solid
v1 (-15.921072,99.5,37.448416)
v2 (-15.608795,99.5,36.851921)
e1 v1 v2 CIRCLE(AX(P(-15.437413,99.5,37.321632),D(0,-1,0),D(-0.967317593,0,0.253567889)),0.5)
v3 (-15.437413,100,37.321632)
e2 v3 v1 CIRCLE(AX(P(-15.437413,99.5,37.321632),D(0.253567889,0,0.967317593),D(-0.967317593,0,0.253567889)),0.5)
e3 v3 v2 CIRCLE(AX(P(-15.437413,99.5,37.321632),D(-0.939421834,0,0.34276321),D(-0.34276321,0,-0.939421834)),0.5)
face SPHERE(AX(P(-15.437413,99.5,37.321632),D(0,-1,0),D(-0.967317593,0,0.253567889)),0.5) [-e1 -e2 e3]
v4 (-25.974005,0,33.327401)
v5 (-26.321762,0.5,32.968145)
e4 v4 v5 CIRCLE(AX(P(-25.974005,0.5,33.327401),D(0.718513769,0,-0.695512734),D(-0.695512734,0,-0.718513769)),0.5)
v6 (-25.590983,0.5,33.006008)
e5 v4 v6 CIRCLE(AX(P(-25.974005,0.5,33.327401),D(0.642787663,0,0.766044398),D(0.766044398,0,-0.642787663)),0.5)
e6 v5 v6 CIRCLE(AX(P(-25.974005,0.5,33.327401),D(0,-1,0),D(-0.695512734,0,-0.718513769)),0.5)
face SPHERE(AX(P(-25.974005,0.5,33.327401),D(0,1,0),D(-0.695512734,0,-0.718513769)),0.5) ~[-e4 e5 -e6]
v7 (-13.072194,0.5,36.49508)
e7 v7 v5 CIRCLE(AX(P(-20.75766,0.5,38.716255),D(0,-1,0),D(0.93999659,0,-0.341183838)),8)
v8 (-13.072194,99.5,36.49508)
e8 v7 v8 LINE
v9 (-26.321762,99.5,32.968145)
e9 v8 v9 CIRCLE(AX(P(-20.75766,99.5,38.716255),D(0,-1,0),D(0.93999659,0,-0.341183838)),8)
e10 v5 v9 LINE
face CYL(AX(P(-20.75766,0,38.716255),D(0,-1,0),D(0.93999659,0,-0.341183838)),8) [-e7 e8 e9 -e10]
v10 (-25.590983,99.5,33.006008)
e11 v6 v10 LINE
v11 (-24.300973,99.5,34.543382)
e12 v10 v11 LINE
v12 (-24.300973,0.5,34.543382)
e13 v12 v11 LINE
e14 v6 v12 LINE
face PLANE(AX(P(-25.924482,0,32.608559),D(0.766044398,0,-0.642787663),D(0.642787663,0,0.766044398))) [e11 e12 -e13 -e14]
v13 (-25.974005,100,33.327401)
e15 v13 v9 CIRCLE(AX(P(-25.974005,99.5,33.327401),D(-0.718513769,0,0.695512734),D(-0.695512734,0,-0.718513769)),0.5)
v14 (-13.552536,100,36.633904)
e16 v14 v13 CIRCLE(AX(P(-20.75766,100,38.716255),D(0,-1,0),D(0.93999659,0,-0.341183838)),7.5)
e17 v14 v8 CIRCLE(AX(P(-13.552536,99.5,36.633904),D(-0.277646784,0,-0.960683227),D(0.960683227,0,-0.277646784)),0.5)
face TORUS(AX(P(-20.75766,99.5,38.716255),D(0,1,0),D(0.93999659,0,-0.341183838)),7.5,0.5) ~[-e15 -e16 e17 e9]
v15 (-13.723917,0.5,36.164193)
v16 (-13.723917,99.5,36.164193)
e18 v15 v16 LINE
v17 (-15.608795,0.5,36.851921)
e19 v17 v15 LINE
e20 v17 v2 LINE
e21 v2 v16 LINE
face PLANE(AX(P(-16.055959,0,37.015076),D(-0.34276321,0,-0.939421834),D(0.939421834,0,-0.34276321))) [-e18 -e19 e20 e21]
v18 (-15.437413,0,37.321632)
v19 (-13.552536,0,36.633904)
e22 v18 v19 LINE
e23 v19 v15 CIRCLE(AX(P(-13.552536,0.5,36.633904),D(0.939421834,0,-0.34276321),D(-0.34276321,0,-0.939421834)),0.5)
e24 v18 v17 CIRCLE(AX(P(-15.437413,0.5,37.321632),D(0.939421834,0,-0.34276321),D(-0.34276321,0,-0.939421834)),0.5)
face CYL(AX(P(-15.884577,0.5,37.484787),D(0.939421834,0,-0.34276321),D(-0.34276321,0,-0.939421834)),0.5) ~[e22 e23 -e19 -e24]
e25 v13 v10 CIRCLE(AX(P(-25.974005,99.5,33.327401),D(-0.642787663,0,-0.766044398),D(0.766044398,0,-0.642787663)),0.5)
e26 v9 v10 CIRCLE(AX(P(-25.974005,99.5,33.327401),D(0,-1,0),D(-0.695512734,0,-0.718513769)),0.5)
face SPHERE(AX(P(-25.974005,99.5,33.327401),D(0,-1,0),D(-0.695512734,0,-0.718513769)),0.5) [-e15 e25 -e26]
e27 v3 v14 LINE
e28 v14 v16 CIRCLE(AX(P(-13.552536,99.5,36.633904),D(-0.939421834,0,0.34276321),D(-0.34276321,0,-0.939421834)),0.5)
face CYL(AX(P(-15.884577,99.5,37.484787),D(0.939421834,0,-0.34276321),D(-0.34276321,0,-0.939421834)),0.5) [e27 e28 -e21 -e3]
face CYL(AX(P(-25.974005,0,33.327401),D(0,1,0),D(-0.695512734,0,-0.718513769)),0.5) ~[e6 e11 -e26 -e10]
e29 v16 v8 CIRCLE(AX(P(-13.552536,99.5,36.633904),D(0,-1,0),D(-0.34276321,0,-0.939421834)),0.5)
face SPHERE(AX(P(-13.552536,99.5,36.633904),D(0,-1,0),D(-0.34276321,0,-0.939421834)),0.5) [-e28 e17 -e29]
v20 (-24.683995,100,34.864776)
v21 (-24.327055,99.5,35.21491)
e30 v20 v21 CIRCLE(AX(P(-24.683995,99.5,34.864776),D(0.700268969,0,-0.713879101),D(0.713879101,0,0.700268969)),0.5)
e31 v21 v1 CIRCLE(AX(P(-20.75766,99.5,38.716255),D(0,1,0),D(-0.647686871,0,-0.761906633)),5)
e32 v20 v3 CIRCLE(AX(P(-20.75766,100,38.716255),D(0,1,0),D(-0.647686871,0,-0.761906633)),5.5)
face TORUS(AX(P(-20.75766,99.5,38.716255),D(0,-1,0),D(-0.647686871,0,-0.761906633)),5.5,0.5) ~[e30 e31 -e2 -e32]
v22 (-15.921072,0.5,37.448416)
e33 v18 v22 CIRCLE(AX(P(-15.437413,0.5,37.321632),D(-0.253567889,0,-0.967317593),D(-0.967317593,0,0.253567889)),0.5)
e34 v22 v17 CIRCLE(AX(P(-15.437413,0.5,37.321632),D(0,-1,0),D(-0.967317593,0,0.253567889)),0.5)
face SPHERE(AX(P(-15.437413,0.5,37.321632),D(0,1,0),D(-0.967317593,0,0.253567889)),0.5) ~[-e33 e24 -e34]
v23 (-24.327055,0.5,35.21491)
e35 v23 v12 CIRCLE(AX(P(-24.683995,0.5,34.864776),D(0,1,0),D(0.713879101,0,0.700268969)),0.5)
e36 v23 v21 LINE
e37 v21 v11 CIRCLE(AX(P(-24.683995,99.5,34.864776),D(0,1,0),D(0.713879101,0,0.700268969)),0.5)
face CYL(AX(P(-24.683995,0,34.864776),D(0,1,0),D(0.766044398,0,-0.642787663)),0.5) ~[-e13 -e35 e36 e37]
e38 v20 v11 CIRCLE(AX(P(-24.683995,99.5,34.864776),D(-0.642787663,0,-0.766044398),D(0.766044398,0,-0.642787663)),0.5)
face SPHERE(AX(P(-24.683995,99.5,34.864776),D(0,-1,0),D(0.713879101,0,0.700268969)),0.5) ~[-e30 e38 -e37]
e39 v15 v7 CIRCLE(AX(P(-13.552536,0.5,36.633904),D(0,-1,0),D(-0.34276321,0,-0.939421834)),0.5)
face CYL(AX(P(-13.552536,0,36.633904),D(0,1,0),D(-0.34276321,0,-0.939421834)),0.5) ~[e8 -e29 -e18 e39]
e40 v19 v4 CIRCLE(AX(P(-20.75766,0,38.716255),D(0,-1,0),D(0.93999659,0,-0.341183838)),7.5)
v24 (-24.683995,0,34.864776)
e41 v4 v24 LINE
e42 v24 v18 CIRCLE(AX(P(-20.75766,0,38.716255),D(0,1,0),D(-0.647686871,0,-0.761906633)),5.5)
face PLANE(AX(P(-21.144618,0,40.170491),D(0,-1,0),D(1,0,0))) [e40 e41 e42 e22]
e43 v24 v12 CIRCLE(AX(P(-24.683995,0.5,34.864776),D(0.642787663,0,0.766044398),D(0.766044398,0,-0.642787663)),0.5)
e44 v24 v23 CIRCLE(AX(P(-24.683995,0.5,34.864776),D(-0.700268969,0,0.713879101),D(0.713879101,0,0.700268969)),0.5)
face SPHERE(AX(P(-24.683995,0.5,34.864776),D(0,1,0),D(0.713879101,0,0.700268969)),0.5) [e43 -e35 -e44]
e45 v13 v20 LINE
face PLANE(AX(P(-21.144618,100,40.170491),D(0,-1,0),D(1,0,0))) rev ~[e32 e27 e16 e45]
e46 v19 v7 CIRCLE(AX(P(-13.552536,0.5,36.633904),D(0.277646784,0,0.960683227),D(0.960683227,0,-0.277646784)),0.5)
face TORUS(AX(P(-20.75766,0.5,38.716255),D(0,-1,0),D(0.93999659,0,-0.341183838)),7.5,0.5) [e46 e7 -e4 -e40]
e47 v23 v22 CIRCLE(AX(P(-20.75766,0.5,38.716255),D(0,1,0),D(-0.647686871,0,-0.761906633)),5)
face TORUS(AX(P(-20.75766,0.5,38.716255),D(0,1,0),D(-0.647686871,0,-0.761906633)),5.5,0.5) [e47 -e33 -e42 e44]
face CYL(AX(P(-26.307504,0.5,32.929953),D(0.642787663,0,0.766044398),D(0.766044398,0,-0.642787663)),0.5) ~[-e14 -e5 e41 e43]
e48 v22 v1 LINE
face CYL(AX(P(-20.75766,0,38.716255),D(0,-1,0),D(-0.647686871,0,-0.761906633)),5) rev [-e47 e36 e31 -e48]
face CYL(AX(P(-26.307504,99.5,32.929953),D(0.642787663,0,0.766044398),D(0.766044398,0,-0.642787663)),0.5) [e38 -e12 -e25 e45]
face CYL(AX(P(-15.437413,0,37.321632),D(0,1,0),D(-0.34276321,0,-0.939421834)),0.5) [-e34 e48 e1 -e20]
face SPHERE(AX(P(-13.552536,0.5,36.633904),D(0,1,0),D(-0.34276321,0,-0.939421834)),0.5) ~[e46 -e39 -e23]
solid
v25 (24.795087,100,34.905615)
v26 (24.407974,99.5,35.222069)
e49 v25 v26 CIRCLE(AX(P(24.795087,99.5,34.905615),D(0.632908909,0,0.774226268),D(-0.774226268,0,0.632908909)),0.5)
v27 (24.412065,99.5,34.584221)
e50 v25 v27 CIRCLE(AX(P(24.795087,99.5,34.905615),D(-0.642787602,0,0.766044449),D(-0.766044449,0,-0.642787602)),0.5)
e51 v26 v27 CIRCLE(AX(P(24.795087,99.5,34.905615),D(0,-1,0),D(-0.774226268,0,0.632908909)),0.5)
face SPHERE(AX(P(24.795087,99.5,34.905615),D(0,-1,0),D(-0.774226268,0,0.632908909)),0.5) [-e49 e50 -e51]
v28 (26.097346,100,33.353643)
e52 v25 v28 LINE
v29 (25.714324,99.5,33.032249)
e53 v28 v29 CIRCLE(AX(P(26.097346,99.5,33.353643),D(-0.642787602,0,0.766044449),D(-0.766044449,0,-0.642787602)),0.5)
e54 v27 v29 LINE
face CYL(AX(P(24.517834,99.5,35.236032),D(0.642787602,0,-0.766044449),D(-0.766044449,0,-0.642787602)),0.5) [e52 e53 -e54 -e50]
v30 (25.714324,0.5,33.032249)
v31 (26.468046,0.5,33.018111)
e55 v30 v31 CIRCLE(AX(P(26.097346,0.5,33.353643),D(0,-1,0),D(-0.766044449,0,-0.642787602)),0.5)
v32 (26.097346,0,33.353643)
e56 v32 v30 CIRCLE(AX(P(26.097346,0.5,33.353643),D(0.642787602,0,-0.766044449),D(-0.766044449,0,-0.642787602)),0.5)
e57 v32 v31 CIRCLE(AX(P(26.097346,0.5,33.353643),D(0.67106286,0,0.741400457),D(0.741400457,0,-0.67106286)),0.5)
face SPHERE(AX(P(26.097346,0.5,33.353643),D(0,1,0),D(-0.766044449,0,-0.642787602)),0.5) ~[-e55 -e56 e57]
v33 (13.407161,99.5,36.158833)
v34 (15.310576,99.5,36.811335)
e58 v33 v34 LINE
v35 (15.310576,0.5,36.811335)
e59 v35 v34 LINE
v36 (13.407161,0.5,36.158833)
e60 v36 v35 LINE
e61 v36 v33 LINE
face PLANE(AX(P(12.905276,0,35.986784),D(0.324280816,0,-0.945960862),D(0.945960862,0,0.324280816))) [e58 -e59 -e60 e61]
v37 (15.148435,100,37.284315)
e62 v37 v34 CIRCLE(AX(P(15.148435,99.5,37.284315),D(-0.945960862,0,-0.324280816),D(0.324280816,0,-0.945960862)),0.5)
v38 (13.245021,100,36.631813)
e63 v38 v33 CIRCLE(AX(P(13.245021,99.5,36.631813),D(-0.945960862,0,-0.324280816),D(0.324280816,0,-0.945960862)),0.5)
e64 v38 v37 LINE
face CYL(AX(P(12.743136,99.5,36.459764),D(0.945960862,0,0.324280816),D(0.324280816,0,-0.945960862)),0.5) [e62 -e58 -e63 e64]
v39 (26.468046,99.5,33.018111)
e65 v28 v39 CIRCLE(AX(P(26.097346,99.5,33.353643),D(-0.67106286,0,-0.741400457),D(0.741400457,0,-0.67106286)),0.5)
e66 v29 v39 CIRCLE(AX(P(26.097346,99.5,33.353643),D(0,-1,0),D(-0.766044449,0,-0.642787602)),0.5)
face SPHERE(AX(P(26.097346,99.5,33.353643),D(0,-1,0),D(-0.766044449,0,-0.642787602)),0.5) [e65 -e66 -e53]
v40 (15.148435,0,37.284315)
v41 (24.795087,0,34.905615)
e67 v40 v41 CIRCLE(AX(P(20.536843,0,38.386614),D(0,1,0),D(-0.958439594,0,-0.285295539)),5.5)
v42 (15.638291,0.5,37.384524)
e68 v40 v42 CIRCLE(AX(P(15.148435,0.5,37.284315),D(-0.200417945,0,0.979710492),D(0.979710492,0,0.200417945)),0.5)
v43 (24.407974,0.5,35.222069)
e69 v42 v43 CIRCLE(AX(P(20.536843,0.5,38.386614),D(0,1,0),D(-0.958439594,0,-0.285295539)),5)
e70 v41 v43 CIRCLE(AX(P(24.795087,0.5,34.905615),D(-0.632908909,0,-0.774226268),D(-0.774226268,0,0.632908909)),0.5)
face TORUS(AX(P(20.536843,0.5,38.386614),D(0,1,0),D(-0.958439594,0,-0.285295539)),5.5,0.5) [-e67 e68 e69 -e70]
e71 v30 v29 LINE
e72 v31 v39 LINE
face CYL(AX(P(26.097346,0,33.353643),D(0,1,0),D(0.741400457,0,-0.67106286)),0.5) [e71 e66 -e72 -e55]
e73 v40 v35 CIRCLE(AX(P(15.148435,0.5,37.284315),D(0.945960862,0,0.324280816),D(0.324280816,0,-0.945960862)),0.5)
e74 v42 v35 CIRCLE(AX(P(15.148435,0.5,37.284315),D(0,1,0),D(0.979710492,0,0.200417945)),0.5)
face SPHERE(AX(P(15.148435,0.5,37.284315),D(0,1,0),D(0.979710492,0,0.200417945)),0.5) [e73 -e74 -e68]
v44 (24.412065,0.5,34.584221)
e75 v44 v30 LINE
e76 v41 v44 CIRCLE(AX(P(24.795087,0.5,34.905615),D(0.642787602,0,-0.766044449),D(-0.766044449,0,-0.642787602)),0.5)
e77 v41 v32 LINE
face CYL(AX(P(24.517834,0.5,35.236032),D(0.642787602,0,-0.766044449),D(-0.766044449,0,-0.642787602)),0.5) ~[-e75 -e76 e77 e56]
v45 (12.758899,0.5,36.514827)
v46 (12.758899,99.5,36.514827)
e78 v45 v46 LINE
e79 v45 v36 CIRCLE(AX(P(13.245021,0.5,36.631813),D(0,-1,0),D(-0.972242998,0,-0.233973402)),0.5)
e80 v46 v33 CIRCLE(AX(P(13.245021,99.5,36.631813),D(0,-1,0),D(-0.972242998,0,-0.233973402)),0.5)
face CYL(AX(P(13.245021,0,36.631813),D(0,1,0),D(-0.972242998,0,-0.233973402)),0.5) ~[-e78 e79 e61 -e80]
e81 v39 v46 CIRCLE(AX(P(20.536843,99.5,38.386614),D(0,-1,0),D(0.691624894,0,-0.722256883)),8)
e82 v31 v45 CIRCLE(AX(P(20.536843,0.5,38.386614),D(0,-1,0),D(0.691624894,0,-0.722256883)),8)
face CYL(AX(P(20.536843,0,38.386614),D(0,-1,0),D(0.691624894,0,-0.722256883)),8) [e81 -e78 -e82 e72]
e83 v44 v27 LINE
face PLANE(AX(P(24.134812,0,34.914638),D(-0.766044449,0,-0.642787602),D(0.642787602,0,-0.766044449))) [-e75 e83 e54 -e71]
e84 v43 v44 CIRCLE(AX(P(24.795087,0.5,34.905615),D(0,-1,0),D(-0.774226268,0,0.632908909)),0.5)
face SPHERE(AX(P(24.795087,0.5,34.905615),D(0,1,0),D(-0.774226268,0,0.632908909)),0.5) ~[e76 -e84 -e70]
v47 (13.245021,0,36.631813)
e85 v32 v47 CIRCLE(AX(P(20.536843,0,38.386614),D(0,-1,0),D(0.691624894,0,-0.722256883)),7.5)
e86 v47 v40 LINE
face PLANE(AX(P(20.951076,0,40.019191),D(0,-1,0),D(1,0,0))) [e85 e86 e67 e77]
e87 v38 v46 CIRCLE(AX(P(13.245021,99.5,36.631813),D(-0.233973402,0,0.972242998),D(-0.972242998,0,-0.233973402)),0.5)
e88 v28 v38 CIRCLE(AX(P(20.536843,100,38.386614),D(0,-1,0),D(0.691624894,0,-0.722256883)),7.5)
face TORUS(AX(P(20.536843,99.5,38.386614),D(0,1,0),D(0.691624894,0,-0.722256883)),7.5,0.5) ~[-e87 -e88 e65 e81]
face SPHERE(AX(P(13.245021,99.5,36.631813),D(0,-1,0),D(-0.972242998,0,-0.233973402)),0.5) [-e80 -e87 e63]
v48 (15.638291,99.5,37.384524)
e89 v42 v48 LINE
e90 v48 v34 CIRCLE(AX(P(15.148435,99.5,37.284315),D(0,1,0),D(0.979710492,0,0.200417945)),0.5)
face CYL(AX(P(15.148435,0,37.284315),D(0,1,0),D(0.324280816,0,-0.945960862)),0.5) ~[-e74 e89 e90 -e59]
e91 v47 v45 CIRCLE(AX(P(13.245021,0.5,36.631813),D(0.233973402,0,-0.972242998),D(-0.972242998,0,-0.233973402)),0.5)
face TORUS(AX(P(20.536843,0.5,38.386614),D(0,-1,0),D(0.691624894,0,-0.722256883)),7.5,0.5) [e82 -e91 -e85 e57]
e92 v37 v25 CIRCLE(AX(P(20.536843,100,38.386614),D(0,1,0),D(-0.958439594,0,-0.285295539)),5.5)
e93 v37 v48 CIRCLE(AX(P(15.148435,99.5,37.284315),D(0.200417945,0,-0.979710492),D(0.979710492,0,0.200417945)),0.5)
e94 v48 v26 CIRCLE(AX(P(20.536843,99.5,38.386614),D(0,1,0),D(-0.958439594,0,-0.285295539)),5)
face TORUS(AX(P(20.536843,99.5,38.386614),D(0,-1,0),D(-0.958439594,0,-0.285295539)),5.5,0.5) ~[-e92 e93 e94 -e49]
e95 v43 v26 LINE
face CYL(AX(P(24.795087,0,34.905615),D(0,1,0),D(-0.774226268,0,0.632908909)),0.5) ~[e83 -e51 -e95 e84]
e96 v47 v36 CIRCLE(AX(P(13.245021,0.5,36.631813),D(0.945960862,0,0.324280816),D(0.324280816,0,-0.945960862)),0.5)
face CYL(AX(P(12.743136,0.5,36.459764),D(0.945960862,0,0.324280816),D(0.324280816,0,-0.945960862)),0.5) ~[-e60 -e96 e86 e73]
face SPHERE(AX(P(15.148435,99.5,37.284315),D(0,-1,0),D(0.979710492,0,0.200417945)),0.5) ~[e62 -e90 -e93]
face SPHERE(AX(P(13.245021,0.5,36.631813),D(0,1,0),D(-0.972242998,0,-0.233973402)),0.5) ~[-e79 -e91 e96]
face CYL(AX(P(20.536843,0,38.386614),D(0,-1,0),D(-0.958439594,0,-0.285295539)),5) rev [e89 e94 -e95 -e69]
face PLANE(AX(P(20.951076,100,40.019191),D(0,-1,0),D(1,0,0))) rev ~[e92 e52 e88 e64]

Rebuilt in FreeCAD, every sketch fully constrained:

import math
import FreeCAD as App
import Part
import Sketcher
from FreeCAD import Vector
Q = App.Units.Quantity

doc = App.newDocument("Part")
body = doc.addObject("PartDesign::Body", "Body")
body.AllowCompound = True

# Sketch on XZ plane
sketch1 = body.newObject("Sketcher::SketchObject", "Sketch")
sketch1.AttachmentSupport = (doc.getObject("XZ_Plane"), [""])
sketch1.MapMode = "FlatFace"
sketch1.addGeometry([
    Part.LineSegment(Vector(-16.055959, 37.015076, 0), Vector(-13.237687, 35.986784, 0)),  # 0
    Part.ArcOfCircle(Part.Circle(Vector(-20.75766, 38.716255, 0), Vector(0, 0, 1), 8), math.radians(-19.949016), math.radians(229.770355)),  # 1
    Part.LineSegment(Vector(-25.924482, 32.608559, 0), Vector(-23.996094, 34.906722, 0)),  # 2
    Part.ArcOfCircle(Part.Circle(Vector(-20.75766, 38.716255, 0), Vector(0, 0, 1), 5), math.radians(-19.891243), math.radians(229.632572)),  # 3
    Part.ArcOfCircle(Part.Circle(Vector(20.536843, 38.386614, 0), Vector(0, 0, 1), 8), math.radians(-46.241129), math.radians(197.456327)),  # 4
    Part.LineSegment(Vector(12.905276, 35.986784, 0), Vector(15.744645, 36.960136, 0)),  # 5
    Part.ArcOfCircle(Part.Circle(Vector(20.536843, 38.386614, 0), Vector(0, 0, 1), 5), math.radians(-43.979039), math.radians(196.576515)),  # 6
    Part.LineSegment(Vector(24.134812, 34.914638, 0), Vector(26.069842, 32.608559, 0)),  # 7
], False)
sketch1.addConstraint([
    Sketcher.Constraint("Coincident", 0, 2, 1, 1),
    Sketcher.Constraint("Coincident", 1, 2, 2, 1),
    Sketcher.Constraint("Coincident", 2, 2, 3, 2),
    Sketcher.Constraint("Coincident", 3, 1, 0, 1),
    Sketcher.Constraint("Coincident", 4, 2, 5, 1),
    Sketcher.Constraint("Coincident", 5, 2, 6, 2),
    Sketcher.Constraint("Coincident", 6, 1, 7, 1),
    Sketcher.Constraint("Coincident", 7, 2, 4, 1),
    Sketcher.Constraint("Coincident", 3, 3, 1, 3),
    Sketcher.Constraint("Coincident", 6, 3, 4, 3),
    Sketcher.Constraint("Equal", 1, 4),
    Sketcher.Constraint("Equal", 3, 6),
    Sketcher.Constraint("Horizontal", 0, 2, 4, 2),
    Sketcher.Constraint("Horizontal", 1, 2, 7, 2),
    Sketcher.Constraint("Radius", 1, 8.0),
    Sketcher.Constraint("Radius", 3, 5.0),
    Sketcher.Constraint("Angle", 2, Q("49.999996 deg")),
    Sketcher.Constraint("Angle", 7, Q("-50.000001 deg")),
    Sketcher.Constraint("DistanceX", 6, 3, 7, 2, 5.532999),
    Sketcher.Constraint("DistanceX", 1, 3, 3, 1, 4.701701),
    Sketcher.Constraint("DistanceX", 0, 2, 6, 1, 37.372499),
    Sketcher.Constraint("Distance", 5, 3.001571),
    Sketcher.Constraint("DistanceX", 1, 3, -1, 1, 20.75766),
    Sketcher.Constraint("DistanceY", -1, 1, 1, 2, 32.608559),
    Sketcher.Constraint("DistanceX", -1, 1, 6, 1, 24.134812),
    Sketcher.Constraint("DistanceY", 4, 3, 3, 3, 0.329641),
])
pad1 = body.newObject("PartDesign::Pad", "Pad")
pad1.Profile = sketch1
pad1.Length = 100
pad1.Reversed = True
doc.recompute()

fillet = body.newObject("PartDesign::Fillet", "Fillet")
fillet.Base = (pad1, ["Edge1"])
fillet.UseAllEdges = True
fillet.Radius = 0.5

doc.recompute()
